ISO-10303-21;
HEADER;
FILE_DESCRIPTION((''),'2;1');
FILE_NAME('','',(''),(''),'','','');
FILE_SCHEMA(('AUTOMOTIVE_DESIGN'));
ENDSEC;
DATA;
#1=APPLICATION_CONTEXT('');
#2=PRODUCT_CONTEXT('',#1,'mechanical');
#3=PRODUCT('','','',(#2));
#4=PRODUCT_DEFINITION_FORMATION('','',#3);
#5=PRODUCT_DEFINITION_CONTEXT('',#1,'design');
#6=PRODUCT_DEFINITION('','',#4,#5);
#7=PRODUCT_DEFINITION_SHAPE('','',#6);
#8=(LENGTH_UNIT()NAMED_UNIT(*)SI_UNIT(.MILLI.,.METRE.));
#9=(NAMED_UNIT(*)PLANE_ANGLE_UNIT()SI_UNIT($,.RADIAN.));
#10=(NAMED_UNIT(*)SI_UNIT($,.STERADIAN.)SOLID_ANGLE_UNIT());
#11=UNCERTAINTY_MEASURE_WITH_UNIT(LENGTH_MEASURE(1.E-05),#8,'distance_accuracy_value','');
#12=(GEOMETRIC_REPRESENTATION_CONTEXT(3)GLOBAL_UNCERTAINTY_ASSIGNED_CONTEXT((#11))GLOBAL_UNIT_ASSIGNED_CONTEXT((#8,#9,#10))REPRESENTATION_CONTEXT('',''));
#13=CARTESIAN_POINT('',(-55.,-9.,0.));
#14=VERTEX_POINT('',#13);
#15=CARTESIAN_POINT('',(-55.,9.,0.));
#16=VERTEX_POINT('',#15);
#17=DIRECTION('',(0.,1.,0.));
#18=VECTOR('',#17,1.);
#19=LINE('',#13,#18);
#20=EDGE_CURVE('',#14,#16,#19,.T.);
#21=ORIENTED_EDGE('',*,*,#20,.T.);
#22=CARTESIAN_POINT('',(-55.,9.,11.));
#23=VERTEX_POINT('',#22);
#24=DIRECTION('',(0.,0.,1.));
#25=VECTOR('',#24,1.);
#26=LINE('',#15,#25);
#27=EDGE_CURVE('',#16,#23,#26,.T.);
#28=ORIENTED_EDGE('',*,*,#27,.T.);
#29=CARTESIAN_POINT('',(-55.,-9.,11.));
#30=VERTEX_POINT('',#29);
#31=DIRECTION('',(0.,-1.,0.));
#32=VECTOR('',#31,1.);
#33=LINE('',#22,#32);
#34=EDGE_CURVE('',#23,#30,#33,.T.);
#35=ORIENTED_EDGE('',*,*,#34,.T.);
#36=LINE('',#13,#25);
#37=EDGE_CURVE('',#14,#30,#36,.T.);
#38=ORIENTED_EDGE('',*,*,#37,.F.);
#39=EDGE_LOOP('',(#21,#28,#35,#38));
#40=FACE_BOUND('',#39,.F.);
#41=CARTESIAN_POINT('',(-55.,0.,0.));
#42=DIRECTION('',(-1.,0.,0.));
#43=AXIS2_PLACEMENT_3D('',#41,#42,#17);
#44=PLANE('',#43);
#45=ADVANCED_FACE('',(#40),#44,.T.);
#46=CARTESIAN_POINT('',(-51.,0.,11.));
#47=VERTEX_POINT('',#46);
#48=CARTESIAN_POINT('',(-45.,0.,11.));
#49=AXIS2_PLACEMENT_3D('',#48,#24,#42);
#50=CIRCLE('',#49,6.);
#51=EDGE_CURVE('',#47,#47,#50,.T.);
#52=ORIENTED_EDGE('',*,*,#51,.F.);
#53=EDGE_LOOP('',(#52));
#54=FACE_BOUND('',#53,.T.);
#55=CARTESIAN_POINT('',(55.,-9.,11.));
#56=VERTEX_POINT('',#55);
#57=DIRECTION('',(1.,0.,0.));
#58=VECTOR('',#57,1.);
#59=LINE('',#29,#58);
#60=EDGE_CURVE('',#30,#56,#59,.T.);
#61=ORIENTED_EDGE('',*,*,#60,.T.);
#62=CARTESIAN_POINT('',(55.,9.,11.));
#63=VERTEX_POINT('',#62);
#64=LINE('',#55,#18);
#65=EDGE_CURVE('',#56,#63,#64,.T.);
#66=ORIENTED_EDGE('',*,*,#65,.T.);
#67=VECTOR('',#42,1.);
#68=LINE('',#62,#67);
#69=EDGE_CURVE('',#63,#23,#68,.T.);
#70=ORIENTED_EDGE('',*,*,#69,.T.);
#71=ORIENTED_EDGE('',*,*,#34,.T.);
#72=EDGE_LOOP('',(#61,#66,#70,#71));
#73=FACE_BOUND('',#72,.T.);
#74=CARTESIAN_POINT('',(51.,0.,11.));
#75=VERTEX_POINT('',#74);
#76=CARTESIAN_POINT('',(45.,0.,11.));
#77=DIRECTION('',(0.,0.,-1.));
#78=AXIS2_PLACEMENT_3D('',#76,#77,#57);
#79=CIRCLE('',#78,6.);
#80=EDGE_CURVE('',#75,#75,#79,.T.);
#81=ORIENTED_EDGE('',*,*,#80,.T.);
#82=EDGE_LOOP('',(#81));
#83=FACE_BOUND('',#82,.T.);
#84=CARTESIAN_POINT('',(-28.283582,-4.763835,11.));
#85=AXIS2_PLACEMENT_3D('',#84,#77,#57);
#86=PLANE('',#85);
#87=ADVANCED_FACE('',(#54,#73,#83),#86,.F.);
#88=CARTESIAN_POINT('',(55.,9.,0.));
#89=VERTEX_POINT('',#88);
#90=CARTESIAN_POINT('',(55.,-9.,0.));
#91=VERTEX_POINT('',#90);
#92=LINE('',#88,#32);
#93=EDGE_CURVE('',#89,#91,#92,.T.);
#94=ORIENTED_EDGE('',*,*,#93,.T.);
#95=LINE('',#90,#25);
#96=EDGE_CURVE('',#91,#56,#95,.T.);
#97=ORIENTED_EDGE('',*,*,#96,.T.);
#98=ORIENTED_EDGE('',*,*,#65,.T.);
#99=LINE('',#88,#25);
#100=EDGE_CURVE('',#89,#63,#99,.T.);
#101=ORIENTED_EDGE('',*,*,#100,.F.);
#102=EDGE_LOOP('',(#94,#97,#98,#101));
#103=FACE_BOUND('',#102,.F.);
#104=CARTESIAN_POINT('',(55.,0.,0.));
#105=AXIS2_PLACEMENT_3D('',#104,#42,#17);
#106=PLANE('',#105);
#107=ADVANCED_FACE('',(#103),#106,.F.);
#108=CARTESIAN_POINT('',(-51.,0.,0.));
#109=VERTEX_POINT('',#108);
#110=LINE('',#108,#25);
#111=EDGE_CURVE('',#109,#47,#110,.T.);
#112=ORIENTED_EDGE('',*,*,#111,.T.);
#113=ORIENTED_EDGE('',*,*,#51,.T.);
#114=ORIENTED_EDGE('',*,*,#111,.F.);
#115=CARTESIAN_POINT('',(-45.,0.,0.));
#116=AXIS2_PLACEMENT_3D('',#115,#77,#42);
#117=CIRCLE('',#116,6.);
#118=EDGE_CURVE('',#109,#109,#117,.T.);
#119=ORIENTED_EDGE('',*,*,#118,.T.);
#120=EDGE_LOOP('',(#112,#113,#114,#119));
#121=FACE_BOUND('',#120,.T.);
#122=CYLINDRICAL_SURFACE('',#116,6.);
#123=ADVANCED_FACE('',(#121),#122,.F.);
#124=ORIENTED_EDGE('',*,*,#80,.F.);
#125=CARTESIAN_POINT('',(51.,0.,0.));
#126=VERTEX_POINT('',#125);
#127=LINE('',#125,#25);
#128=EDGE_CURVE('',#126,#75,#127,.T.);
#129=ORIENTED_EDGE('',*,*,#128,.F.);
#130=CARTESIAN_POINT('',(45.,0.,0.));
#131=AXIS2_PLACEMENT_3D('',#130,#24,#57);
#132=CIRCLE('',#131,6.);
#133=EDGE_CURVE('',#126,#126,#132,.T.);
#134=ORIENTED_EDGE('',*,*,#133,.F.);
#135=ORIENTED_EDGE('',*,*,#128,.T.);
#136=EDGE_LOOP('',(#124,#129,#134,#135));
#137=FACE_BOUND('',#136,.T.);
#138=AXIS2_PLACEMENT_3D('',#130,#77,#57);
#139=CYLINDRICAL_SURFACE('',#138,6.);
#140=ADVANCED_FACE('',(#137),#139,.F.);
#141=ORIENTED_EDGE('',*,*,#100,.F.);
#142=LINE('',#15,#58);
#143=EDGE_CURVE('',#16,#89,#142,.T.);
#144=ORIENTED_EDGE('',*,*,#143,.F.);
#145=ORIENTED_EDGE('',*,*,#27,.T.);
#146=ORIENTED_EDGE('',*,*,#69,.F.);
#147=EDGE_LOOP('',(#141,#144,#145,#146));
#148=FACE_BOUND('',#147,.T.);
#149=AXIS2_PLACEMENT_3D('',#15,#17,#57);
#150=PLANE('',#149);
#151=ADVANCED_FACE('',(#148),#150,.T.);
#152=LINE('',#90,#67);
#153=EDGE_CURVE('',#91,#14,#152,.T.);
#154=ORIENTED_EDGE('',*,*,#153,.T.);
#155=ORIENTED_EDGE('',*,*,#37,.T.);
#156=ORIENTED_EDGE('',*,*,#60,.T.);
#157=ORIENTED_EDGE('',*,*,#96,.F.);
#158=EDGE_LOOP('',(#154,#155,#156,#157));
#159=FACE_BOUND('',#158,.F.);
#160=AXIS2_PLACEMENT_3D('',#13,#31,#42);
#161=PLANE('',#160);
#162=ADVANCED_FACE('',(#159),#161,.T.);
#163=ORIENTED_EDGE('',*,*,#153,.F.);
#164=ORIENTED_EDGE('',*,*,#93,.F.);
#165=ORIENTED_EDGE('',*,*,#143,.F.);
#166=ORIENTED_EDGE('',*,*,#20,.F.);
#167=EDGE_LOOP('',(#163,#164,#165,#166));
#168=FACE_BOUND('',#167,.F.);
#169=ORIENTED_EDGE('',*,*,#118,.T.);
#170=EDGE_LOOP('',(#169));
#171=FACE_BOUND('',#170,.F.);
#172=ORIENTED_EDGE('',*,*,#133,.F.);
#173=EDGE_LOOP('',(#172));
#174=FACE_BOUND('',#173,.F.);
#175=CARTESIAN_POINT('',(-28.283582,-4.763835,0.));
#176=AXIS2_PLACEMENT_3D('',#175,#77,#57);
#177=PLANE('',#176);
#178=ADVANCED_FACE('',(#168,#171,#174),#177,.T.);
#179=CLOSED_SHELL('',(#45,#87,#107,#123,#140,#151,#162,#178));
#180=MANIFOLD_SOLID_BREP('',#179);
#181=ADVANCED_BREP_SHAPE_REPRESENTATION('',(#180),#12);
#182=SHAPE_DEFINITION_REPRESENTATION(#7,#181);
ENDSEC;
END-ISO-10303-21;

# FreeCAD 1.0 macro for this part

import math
import FreeCAD as App
import Part
import Sketcher
from FreeCAD import Vector
Q = App.Units.Quantity

doc = App.newDocument("Part")
body = doc.addObject("PartDesign::Body", "Body")

# Sketch on XY plane
sketch1 = body.newObject("Sketcher::SketchObject", "Sketch")
sketch1.AttachmentSupport = (doc.getObject("XY_Plane"), [""])
sketch1.MapMode = "FlatFace"
sketch1.addGeometry(Part.LineSegment(Vector(0, 0, 0), Vector(39, 0, 0)), False)
sketch1.addGeometry(Part.ArcOfCircle(Part.Circle(Vector(45, 0, 0), Vector(0, 0, 1), 6), math.radians(0), math.radians(180)), False)
sketch1.addGeometry(Part.LineSegment(Vector(51, 0, 0), Vector(55, 0, 0)), False)
sketch1.addGeometry(Part.LineSegment(Vector(55, 0, 0), Vector(55, 9, 0)), False)
sketch1.addGeometry(Part.LineSegment(Vector(55, 9, 0), Vector(0, 9, 0)), False)
sketch1.addGeometry(Part.LineSegment(Vector(0, 9, 0), Vector(0, 0, 0)), False)
sketch1.addConstraint(Sketcher.Constraint("Coincident", 0, 2, 1, 2))
sketch1.addConstraint(Sketcher.Constraint("Coincident", 1, 1, 2, 1))
sketch1.addConstraint(Sketcher.Constraint("Coincident", 2, 2, 3, 1))
sketch1.addConstraint(Sketcher.Constraint("Coincident", 3, 2, 4, 1))
sketch1.addConstraint(Sketcher.Constraint("Coincident", 4, 2, 5, 1))
sketch1.addConstraint(Sketcher.Constraint("Coincident", 5, 2, 0, 1))
sketch1.addConstraint(Sketcher.Constraint("Horizontal", 0))
sketch1.addConstraint(Sketcher.Constraint("Horizontal", 2))
sketch1.addConstraint(Sketcher.Constraint("Vertical", 3))
sketch1.addConstraint(Sketcher.Constraint("Horizontal", 4))
sketch1.addConstraint(Sketcher.Constraint("Vertical", 5))
sketch1.addConstraint(Sketcher.Constraint("Coincident", 5, 2, -1, 1))
sketch1.addConstraint(Sketcher.Constraint("PointOnObject", 1, 3, -1))
sketch1.addConstraint(Sketcher.Constraint("PointOnObject", 1, 1, -1))
sketch1.addConstraint(Sketcher.Constraint("Radius", 1, Q("6 mm")))
sketch1.addConstraint(Sketcher.Constraint("DistanceX", 0, 1, 0, 2, Q("39 mm")))
sketch1.addConstraint(Sketcher.Constraint("DistanceX", 2, 1, 2, 2, Q("4 mm")))
sketch1.addConstraint(Sketcher.Constraint("DistanceY", 3, 1, 3, 2, Q("9 mm")))
pad1 = body.newObject("PartDesign::Pad", "Pad")
pad1.Profile = sketch1
pad1.Length = 11

# Sketch on XY plane
sketch2 = body.newObject("Sketcher::SketchObject", "Sketch001")
sketch2.AttachmentSupport = (doc.getObject("XY_Plane"), [""])
sketch2.MapMode = "FlatFace"
sketch2.addGeometry(Part.LineSegment(Vector(0, 0, 0), Vector(-39, 0, 0)), False)
sketch2.addGeometry(Part.ArcOfCircle(Part.Circle(Vector(-45, 0, 0), Vector(0, 0, 1), 6), math.radians(0), math.radians(180)), False)
sketch2.addGeometry(Part.LineSegment(Vector(-51, 0, 0), Vector(-55, 0, 0)), False)
sketch2.addGeometry(Part.LineSegment(Vector(-55, 0, 0), Vector(-55, 9, 0)), False)
sketch2.addGeometry(Part.LineSegment(Vector(-55, 9, 0), Vector(0, 9, 0)), False)
sketch2.addGeometry(Part.LineSegment(Vector(0, 9, 0), Vector(0, 0, 0)), False)
sketch2.addConstraint(Sketcher.Constraint("Coincident", 0, 2, 1, 1))
sketch2.addConstraint(Sketcher.Constraint("Coincident", 1, 2, 2, 1))
sketch2.addConstraint(Sketcher.Constraint("Coincident", 2, 2, 3, 1))
sketch2.addConstraint(Sketcher.Constraint("Coincident", 3, 2, 4, 1))
sketch2.addConstraint(Sketcher.Constraint("Coincident", 4, 2, 5, 1))
sketch2.addConstraint(Sketcher.Constraint("Coincident", 5, 2, 0, 1))
sketch2.addConstraint(Sketcher.Constraint("Horizontal", 0))
sketch2.addConstraint(Sketcher.Constraint("Horizontal", 2))
sketch2.addConstraint(Sketcher.Constraint("Vertical", 3))
sketch2.addConstraint(Sketcher.Constraint("Horizontal", 4))
sketch2.addConstraint(Sketcher.Constraint("Vertical", 5))
sketch2.addConstraint(Sketcher.Constraint("Coincident", 5, 2, -1, 1))
sketch2.addConstraint(Sketcher.Constraint("PointOnObject", 1, 3, -1))
sketch2.addConstraint(Sketcher.Constraint("PointOnObject", 1, 2, -1))
sketch2.addConstraint(Sketcher.Constraint("Radius", 1, Q("6 mm")))
sketch2.addConstraint(Sketcher.Constraint("DistanceX", 0, 2, 0, 1, Q("39 mm")))
sketch2.addConstraint(Sketcher.Constraint("DistanceX", 2, 2, 2, 1, Q("4 mm")))
sketch2.addConstraint(Sketcher.Constraint("DistanceY", 3, 1, 3, 2, Q("9 mm")))
pad2 = body.newObject("PartDesign::Pad", "Pad001")
pad2.Profile = sketch2
pad2.Length = 11
doc.recompute()

mirrored = body.newObject("PartDesign::Mirrored", "Mirrored")
mirrored.Originals = [pad1, pad2]
mirrored.MirrorPlane = (doc.getObject("XZ_Plane"), [""])
body.Tip = mirrored

doc.recompute()
